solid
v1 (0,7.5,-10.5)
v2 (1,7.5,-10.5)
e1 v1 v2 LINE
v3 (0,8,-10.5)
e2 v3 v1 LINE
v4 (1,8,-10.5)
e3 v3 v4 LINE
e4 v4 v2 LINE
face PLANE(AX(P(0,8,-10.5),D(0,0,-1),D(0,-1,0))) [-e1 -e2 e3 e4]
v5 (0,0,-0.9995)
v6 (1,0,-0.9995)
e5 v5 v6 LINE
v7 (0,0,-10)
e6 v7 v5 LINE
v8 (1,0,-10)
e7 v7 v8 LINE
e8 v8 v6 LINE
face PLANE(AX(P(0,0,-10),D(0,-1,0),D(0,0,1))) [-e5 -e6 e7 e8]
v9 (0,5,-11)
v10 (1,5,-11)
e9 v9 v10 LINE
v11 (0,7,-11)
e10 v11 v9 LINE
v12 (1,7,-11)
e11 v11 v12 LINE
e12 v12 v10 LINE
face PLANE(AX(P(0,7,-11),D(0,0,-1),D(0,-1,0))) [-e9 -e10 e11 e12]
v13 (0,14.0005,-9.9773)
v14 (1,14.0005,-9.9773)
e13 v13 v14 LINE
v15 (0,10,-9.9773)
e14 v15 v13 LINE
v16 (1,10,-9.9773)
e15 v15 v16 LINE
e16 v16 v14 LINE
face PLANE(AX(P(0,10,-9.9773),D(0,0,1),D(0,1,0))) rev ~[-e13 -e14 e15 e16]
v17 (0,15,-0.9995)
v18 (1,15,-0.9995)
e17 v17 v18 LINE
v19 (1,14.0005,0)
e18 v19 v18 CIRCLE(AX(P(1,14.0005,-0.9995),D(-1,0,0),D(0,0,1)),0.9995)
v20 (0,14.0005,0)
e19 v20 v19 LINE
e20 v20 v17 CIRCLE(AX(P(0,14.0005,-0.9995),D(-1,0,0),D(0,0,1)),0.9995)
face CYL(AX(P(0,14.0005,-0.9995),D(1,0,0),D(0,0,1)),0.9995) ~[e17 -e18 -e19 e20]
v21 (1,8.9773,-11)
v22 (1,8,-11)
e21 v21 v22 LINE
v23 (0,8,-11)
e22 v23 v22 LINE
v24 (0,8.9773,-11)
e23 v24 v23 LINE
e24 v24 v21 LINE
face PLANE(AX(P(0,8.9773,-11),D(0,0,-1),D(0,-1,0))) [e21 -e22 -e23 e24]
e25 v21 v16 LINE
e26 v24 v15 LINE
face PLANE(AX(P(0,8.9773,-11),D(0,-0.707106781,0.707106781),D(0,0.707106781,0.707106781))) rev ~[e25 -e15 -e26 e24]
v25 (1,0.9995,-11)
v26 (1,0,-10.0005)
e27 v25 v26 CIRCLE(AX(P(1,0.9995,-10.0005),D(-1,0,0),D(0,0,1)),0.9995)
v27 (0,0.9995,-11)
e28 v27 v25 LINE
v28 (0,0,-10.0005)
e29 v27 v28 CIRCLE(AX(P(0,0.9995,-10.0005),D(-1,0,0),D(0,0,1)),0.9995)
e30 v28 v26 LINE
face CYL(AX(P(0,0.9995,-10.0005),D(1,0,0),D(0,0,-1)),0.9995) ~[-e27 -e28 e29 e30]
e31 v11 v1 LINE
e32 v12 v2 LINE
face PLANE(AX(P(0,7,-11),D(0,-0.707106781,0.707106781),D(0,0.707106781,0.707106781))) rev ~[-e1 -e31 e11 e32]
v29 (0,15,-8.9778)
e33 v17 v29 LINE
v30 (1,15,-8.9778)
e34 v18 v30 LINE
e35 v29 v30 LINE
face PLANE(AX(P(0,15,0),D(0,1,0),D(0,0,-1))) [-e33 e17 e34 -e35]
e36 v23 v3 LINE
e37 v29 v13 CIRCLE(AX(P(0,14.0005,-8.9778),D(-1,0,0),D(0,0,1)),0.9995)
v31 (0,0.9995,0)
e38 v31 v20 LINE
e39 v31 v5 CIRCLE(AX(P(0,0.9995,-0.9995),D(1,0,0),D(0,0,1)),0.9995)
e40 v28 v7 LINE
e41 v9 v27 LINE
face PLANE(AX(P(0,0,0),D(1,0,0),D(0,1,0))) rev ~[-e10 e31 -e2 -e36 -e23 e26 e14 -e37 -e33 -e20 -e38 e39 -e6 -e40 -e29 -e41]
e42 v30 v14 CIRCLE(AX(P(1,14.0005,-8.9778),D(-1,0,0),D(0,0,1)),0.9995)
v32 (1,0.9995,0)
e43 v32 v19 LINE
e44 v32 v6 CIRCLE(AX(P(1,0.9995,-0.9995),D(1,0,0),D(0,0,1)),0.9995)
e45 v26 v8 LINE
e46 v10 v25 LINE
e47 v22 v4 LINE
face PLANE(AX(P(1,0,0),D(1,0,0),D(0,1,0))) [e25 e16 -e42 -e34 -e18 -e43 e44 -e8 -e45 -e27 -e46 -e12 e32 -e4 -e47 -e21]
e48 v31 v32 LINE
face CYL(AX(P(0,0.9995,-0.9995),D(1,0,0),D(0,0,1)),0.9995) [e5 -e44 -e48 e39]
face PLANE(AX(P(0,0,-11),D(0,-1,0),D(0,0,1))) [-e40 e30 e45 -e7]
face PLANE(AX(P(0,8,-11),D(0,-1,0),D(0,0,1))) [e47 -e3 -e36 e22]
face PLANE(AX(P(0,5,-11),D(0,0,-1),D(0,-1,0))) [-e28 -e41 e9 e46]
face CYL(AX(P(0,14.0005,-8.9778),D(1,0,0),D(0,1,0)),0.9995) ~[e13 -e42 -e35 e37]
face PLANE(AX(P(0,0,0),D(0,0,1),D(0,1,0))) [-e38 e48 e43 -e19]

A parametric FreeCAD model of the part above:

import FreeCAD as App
import Part
import Sketcher
Q = App.Units.Quantity


def edges_at(feature, points):
    """Names of the edges that pass closest to the given points."""
    edges = feature.Shape.Edges
    near = lambda p: min(range(len(edges)), key=lambda i: edges[i].distToShape(Part.Vertex(*p))[0])
    return sorted({f"Edge{near(p) + 1}" for p in points})

doc = App.newDocument("Part")
params = doc.addObject("Spreadsheet::Sheet", "Params")
for row, (alias, value) in enumerate([
    ("sketch1_width", "15 mm"),
    ("sketch1_width2", "5 mm"),
    ("sketch1_height", "11 mm"),
    ("sketch1_width3", "7 mm"),
    ("sketch1_width4", "0.5 mm"),
    ("pad1_length", "1 mm"),
    ("fillet_radius", "1 mm"),
], start=1):
    params.set(f"A{row}", alias)
    params.set(f"B{row}", "=" + value)
    params.setAlias(f"B{row}", alias)

body = doc.addObject("PartDesign::Body", "Body")

sketch1 = doc.addObject("Sketcher::SketchObject", "Sketch")
body.addObject(sketch1)
sketch1.AttachmentSupport = (doc.YZ_Plane, [""])
sketch1.MapMode = "FlatFace"
sketch1.addGeometry([
    Part.LineSegment(App.Vector(15, 0, 0), App.Vector(0, 0, 0)),
    Part.LineSegment(App.Vector(0, 0, 0), App.Vector(0, -11, 0)),
    Part.LineSegment(App.Vector(0, -11, 0), App.Vector(7, -11, 0)),
    Part.LineSegment(App.Vector(7, -11, 0), App.Vector(7.5, -10.5, 0)),
    Part.LineSegment(App.Vector(7.5, -10.5, 0), App.Vector(8, -10.5, 0)),
    Part.LineSegment(App.Vector(8, -10.5, 0), App.Vector(8, -11, 0)),
    Part.LineSegment(App.Vector(8, -11, 0), App.Vector(9, -11, 0)),
    Part.LineSegment(App.Vector(9, -11, 0), App.Vector(10, -10, 0)),
    Part.LineSegment(App.Vector(10, -10, 0), App.Vector(15, -10, 0)),
    Part.LineSegment(App.Vector(15, -10, 0), App.Vector(15, 0, 0)),
], False)
sketch1.addConstraint([
    Sketcher.Constraint("Coincident", 0, 2, 1, 1),
    Sketcher.Constraint("Coincident", 1, 2, 2, 1),
    Sketcher.Constraint("Coincident", 2, 2, 3, 1),
    Sketcher.Constraint("Coincident", 3, 2, 4, 1),
    Sketcher.Constraint("Coincident", 4, 2, 5, 1),
    Sketcher.Constraint("Coincident", 5, 2, 6, 1),
    Sketcher.Constraint("Coincident", 6, 2, 7, 1),
    Sketcher.Constraint("Coincident", 7, 2, 8, 1),
    Sketcher.Constraint("Coincident", 8, 2, 9, 1),
    Sketcher.Constraint("Coincident", 9, 2, 0, 1),
    Sketcher.Constraint("Horizontal", 0),
    Sketcher.Constraint("Vertical", 1),
    Sketcher.Constraint("Horizontal", 2),
    Sketcher.Constraint("Horizontal", 4),
    Sketcher.Constraint("Vertical", 5),
    Sketcher.Constraint("Horizontal", 6),
    Sketcher.Constraint("Horizontal", 8),
    Sketcher.Constraint("Vertical", 9),
    Sketcher.Constraint("Coincident", 0, 2, -1, 1),
    Sketcher.Constraint("Parallel", 3, 7),
    Sketcher.Constraint("Horizontal", 2, 2, 5, 2),
    Sketcher.Constraint("Equal", 4, 5),
    Sketcher.Constraint("DistanceX", 0, 2, 0, 1, 15.0),
    Sketcher.Constraint("DistanceX", 8, 1, 8, 2, 5.0),
    Sketcher.Constraint("DistanceY", 1, 2, 1, 1, 11.0),
    Sketcher.Constraint("Angle", 3, Q("45 deg")),
    Sketcher.Constraint("DistanceX", 2, 1, 2, 2, 7.0),
    Sketcher.Constraint("DistanceX", 4, 1, 4, 2, 0.5),
    Sketcher.Constraint("DistanceX", 6, 1, 6, 2, 0.9773),
])
sketch1.setExpression("Constraints[22]", "Params.sketch1_width")
sketch1.setExpression("Constraints[23]", "Params.sketch1_width2")
sketch1.setExpression("Constraints[24]", "Params.sketch1_height")
sketch1.setExpression("Constraints[26]", "Params.sketch1_width3")
sketch1.setExpression("Constraints[27]", "Params.sketch1_width4")
pad1 = doc.addObject("PartDesign::Pad", "Pad")
body.addObject(pad1)
pad1.Profile = sketch1
pad1.setExpression("Length", "Params.pad1_length")
doc.recompute()

fillet = doc.addObject("PartDesign::Fillet", "Fillet")
body.addObject(fillet)
fillet.Base = (pad1, edges_at(pad1, [
    (0.5, 15, -9.977),
    (0.5, 15, 0),
    (0.5, 0, -11),
    (0.5, 0, 0),
]))
fillet.setExpression("Radius", "Params.fillet_radius")

doc.recompute()
